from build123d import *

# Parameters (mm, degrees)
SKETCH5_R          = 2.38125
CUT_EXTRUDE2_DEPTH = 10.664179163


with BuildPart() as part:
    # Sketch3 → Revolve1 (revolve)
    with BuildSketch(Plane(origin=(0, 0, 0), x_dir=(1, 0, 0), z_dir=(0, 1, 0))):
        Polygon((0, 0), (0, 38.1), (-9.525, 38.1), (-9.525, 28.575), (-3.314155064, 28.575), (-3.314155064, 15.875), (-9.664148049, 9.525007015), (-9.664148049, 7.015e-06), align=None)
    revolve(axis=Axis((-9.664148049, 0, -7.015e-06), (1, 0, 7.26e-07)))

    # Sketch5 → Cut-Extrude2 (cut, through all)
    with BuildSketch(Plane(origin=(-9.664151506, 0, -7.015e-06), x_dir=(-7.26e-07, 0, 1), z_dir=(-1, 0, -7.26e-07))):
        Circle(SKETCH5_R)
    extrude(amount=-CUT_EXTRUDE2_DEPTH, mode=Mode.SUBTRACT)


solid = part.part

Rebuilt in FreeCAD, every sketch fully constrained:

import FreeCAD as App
import Part
import Sketcher
from FreeCAD import Vector
Q = App.Units.Quantity

doc = App.newDocument("Part")
body = doc.addObject("PartDesign::Body", "Body")

sketch1 = body.newObject("Sketcher::SketchObject", "Sketch")
sketch1.AttachmentSupport = (doc.getObject("XZ_Plane"), [""])
sketch1.MapMode = "FlatFace"
sketch1.addGeometry([
    Part.LineSegment(Vector(0, 0, 0), Vector(0, -38.1, 0)),
    Part.LineSegment(Vector(0, -38.1, 0), Vector(-9.525, -38.1, 0)),
    Part.LineSegment(Vector(-9.525, -38.1, 0), Vector(-9.525, -28.575, 0)),
    Part.LineSegment(Vector(-9.525, -28.575, 0), Vector(-3.314155, -28.575, 0)),
    Part.LineSegment(Vector(-3.314155, -28.575, 0), Vector(-3.314155, -15.875, 0)),
    Part.LineSegment(Vector(-3.314155, -15.875, 0), Vector(-9.664148, -9.525007, 0)),
    Part.LineSegment(Vector(-9.664148, -9.525007, 0), Vector(-9.664148, -0.000007, 0)),
    Part.LineSegment(Vector(-9.664148, -0.000007, 0), Vector(0, 0, 0)),
], False)
sketch1.addGeometry(Part.LineSegment(Vector(-9.664155, -0.000007, 0), Vector(0, 0, 0)), True)
sketch1.addConstraint([
    Sketcher.Constraint("Coincident", 0, 2, 1, 1),
    Sketcher.Constraint("Coincident", 1, 2, 2, 1),
    Sketcher.Constraint("Coincident", 2, 2, 3, 1),
    Sketcher.Constraint("Coincident", 3, 2, 4, 1),
    Sketcher.Constraint("Coincident", 4, 2, 5, 1),
    Sketcher.Constraint("Coincident", 5, 2, 6, 1),
    Sketcher.Constraint("Coincident", 6, 2, 7, 1),
    Sketcher.Constraint("Coincident", 7, 2, 0, 1),
    Sketcher.Constraint("Vertical", 0),
    Sketcher.Constraint("Horizontal", 1),
    Sketcher.Constraint("Vertical", 2),
    Sketcher.Constraint("Horizontal", 3),
    Sketcher.Constraint("Vertical", 4),
    Sketcher.Constraint("Vertical", 6),
    Sketcher.Constraint("Coincident", 7, 2, -1, 1),
    Sketcher.Constraint("Coincident", 8, 2, -1, 1),
    Sketcher.Constraint("Coincident", 8, 1, 6, 2),
    Sketcher.Constraint("Equal", 1, 2),
    Sketcher.Constraint("Equal", 2, 6),
    Sketcher.Constraint("DistanceY", 0, 2, 0, 1, Q("1.5 in")),
    Sketcher.Constraint("DistanceY", 4, 1, 4, 2, Q("0.5 in")),
    Sketcher.Constraint("Angle", 5, Q("135 deg")),
    Sketcher.Constraint("DistanceX", 1, 2, 1, 1, Q("0.375 in")),
    Sketcher.Constraint("DistanceX", 8, 1, 4, 2, Q("0.25 in")),
    Sketcher.Constraint("Distance", 7, 9.664148),
])
revolution = body.newObject("PartDesign::Revolution", "Revolution")
revolution.Profile = sketch1
revolution.ReferenceAxis = (sketch1, ["Axis0"])
revolution.Angle = 360

sketch2 = body.newObject("Sketcher::SketchObject", "Sketch001")
sketch2.AttachmentSupport = (doc.getObject("YZ_Plane"), [""])
sketch2.MapMode = "FlatFace"
sketch2.AttachmentOffset = App.Placement(Vector(0, 0, -9.664152), App.Rotation())
sketch2.addGeometry(Part.Circle(Vector(0, -0.000007, 0), Vector(0, 0, 1), 2.38125), False)
sketch2.addConstraint([
    Sketcher.Constraint("Coincident", 0, 3, -1, 1),
    Sketcher.Constraint("Diameter", 0, Q("0.1875 in")),
])
pocket1 = body.newObject("PartDesign::Pocket", "Pocket")
pocket1.Profile = sketch2
pocket1.Type = "ThroughAll"
pocket1.Reversed = True

doc.recompute()
